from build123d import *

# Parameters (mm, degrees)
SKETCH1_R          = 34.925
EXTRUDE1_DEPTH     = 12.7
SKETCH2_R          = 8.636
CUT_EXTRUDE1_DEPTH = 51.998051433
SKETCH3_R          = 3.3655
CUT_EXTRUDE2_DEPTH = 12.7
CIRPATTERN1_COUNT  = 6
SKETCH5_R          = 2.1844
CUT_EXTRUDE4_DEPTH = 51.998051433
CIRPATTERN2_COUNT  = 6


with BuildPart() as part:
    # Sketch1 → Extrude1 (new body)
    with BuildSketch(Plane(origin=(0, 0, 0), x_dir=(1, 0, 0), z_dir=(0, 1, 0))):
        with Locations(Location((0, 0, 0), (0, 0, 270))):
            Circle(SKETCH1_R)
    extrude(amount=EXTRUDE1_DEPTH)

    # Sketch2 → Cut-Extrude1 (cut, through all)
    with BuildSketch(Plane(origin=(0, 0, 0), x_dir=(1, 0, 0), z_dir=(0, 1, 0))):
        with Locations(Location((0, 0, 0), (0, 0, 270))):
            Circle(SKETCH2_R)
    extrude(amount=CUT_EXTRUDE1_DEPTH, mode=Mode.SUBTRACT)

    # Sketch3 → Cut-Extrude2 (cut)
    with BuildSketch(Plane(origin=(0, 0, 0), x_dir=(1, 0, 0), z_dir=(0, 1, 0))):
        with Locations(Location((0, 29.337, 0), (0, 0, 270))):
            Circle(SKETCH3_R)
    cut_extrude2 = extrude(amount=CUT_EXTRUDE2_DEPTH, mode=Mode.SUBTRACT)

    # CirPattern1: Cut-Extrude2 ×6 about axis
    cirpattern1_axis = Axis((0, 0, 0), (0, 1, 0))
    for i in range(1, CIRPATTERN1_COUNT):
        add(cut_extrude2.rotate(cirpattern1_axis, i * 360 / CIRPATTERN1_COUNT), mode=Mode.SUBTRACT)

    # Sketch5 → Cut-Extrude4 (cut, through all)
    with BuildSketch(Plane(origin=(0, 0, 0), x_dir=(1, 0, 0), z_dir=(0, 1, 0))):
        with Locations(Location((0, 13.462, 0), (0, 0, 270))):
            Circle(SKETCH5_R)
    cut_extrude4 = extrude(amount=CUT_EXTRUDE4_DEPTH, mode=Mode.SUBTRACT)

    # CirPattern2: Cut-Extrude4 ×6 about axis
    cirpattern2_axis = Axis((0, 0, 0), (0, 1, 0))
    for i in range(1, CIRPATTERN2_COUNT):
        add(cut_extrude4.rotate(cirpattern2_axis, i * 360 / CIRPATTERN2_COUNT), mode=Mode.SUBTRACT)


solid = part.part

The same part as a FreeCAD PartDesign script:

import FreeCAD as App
import Part
import Sketcher
Q = App.Units.Quantity

doc = App.newDocument("Part")
body = doc.addObject("PartDesign::Body", "Body")

# Sketch on XZ plane
sketch1 = body.newObject("Sketcher::SketchObject", "Sketch")
sketch1.AttachmentSupport = (doc.getObject("XZ_Plane"), [""])
sketch1.MapMode = "FlatFace"
sketch1.addGeometry(Part.Circle(App.Vector(0, 0, 0), App.Vector(0, 0, 1), 34.925), False)
sketch1.addConstraint([
    Sketcher.Constraint("Coincident", 0, 3, -1, 1),
    Sketcher.Constraint("Diameter", 0, Q("2.75 in")),
])
pad1 = body.newObject("PartDesign::Pad", "Pad")
pad1.Profile = sketch1
pad1.Length = Q("0.5 in")
pad1.Reversed = True

# Sketch on XZ plane
sketch2 = body.newObject("Sketcher::SketchObject", "Sketch001")
sketch2.AttachmentSupport = (doc.getObject("XZ_Plane"), [""])
sketch2.MapMode = "FlatFace"
sketch2.addGeometry(Part.Circle(App.Vector(0, 0, 0), App.Vector(0, 0, 1), 8.636), False)
sketch2.addConstraint([
    Sketcher.Constraint("Coincident", 0, 3, -1, 1),
    Sketcher.Constraint("Diameter", 0, Q("0.68 in")),
])
pocket1 = body.newObject("PartDesign::Pocket", "Pocket")
pocket1.Profile = sketch2
pocket1.Type = "ThroughAll"

# Sketch on XZ plane
sketch3 = body.newObject("Sketcher::SketchObject", "Sketch002")
sketch3.AttachmentSupport = (doc.getObject("XZ_Plane"), [""])
sketch3.MapMode = "FlatFace"
sketch3.addGeometry(Part.Circle(App.Vector(0, -29.337, 0), App.Vector(0, 0, 1), 3.3655), False)
sketch3.addConstraint([
    Sketcher.Constraint("PointOnObject", 0, 3, -2),
    Sketcher.Constraint("Diameter", 0, Q("0.265 in")),
    Sketcher.Constraint("DistanceY", 0, 3, -1, 1, Q("1.155 in")),
])
pocket2 = body.newObject("PartDesign::Pocket", "Pocket001")
pocket2.Profile = sketch3
pocket2.Length = Q("0.5 in")
doc.recompute()

polarpattern = body.newObject("PartDesign::PolarPattern", "PolarPattern")
polarpattern.Originals = [pocket2]
polarpattern.Axis = (doc.getObject("Y_Axis"), [""])
polarpattern.Angle = 360
polarpattern.Occurrences = 6
body.Tip = polarpattern

# Sketch on XZ plane
sketch4 = body.newObject("Sketcher::SketchObject", "Sketch003")
sketch4.AttachmentSupport = (doc.getObject("XZ_Plane"), [""])
sketch4.MapMode = "FlatFace"
sketch4.addGeometry(Part.Circle(App.Vector(0, -13.462, 0), App.Vector(0, 0, 1), 2.1844), False)
sketch4.addConstraint([
    Sketcher.Constraint("PointOnObject", 0, 3, -2),
    Sketcher.Constraint("Diameter", 0, Q("0.172 in")),
    Sketcher.Constraint("DistanceY", 0, 3, -1, 1, Q("0.53 in")),
])
pocket3 = body.newObject("PartDesign::Pocket", "Pocket002")
pocket3.Profile = sketch4
pocket3.Type = "ThroughAll"
doc.recompute()

polarpattern2 = body.newObject("PartDesign::PolarPattern", "PolarPattern001")
polarpattern2.Originals = [pocket3]
polarpattern2.Axis = (doc.getObject("Y_Axis"), [""])
polarpattern2.Angle = 360
polarpattern2.Occurrences = 6
body.Tip = polarpattern2

doc.recompute()
